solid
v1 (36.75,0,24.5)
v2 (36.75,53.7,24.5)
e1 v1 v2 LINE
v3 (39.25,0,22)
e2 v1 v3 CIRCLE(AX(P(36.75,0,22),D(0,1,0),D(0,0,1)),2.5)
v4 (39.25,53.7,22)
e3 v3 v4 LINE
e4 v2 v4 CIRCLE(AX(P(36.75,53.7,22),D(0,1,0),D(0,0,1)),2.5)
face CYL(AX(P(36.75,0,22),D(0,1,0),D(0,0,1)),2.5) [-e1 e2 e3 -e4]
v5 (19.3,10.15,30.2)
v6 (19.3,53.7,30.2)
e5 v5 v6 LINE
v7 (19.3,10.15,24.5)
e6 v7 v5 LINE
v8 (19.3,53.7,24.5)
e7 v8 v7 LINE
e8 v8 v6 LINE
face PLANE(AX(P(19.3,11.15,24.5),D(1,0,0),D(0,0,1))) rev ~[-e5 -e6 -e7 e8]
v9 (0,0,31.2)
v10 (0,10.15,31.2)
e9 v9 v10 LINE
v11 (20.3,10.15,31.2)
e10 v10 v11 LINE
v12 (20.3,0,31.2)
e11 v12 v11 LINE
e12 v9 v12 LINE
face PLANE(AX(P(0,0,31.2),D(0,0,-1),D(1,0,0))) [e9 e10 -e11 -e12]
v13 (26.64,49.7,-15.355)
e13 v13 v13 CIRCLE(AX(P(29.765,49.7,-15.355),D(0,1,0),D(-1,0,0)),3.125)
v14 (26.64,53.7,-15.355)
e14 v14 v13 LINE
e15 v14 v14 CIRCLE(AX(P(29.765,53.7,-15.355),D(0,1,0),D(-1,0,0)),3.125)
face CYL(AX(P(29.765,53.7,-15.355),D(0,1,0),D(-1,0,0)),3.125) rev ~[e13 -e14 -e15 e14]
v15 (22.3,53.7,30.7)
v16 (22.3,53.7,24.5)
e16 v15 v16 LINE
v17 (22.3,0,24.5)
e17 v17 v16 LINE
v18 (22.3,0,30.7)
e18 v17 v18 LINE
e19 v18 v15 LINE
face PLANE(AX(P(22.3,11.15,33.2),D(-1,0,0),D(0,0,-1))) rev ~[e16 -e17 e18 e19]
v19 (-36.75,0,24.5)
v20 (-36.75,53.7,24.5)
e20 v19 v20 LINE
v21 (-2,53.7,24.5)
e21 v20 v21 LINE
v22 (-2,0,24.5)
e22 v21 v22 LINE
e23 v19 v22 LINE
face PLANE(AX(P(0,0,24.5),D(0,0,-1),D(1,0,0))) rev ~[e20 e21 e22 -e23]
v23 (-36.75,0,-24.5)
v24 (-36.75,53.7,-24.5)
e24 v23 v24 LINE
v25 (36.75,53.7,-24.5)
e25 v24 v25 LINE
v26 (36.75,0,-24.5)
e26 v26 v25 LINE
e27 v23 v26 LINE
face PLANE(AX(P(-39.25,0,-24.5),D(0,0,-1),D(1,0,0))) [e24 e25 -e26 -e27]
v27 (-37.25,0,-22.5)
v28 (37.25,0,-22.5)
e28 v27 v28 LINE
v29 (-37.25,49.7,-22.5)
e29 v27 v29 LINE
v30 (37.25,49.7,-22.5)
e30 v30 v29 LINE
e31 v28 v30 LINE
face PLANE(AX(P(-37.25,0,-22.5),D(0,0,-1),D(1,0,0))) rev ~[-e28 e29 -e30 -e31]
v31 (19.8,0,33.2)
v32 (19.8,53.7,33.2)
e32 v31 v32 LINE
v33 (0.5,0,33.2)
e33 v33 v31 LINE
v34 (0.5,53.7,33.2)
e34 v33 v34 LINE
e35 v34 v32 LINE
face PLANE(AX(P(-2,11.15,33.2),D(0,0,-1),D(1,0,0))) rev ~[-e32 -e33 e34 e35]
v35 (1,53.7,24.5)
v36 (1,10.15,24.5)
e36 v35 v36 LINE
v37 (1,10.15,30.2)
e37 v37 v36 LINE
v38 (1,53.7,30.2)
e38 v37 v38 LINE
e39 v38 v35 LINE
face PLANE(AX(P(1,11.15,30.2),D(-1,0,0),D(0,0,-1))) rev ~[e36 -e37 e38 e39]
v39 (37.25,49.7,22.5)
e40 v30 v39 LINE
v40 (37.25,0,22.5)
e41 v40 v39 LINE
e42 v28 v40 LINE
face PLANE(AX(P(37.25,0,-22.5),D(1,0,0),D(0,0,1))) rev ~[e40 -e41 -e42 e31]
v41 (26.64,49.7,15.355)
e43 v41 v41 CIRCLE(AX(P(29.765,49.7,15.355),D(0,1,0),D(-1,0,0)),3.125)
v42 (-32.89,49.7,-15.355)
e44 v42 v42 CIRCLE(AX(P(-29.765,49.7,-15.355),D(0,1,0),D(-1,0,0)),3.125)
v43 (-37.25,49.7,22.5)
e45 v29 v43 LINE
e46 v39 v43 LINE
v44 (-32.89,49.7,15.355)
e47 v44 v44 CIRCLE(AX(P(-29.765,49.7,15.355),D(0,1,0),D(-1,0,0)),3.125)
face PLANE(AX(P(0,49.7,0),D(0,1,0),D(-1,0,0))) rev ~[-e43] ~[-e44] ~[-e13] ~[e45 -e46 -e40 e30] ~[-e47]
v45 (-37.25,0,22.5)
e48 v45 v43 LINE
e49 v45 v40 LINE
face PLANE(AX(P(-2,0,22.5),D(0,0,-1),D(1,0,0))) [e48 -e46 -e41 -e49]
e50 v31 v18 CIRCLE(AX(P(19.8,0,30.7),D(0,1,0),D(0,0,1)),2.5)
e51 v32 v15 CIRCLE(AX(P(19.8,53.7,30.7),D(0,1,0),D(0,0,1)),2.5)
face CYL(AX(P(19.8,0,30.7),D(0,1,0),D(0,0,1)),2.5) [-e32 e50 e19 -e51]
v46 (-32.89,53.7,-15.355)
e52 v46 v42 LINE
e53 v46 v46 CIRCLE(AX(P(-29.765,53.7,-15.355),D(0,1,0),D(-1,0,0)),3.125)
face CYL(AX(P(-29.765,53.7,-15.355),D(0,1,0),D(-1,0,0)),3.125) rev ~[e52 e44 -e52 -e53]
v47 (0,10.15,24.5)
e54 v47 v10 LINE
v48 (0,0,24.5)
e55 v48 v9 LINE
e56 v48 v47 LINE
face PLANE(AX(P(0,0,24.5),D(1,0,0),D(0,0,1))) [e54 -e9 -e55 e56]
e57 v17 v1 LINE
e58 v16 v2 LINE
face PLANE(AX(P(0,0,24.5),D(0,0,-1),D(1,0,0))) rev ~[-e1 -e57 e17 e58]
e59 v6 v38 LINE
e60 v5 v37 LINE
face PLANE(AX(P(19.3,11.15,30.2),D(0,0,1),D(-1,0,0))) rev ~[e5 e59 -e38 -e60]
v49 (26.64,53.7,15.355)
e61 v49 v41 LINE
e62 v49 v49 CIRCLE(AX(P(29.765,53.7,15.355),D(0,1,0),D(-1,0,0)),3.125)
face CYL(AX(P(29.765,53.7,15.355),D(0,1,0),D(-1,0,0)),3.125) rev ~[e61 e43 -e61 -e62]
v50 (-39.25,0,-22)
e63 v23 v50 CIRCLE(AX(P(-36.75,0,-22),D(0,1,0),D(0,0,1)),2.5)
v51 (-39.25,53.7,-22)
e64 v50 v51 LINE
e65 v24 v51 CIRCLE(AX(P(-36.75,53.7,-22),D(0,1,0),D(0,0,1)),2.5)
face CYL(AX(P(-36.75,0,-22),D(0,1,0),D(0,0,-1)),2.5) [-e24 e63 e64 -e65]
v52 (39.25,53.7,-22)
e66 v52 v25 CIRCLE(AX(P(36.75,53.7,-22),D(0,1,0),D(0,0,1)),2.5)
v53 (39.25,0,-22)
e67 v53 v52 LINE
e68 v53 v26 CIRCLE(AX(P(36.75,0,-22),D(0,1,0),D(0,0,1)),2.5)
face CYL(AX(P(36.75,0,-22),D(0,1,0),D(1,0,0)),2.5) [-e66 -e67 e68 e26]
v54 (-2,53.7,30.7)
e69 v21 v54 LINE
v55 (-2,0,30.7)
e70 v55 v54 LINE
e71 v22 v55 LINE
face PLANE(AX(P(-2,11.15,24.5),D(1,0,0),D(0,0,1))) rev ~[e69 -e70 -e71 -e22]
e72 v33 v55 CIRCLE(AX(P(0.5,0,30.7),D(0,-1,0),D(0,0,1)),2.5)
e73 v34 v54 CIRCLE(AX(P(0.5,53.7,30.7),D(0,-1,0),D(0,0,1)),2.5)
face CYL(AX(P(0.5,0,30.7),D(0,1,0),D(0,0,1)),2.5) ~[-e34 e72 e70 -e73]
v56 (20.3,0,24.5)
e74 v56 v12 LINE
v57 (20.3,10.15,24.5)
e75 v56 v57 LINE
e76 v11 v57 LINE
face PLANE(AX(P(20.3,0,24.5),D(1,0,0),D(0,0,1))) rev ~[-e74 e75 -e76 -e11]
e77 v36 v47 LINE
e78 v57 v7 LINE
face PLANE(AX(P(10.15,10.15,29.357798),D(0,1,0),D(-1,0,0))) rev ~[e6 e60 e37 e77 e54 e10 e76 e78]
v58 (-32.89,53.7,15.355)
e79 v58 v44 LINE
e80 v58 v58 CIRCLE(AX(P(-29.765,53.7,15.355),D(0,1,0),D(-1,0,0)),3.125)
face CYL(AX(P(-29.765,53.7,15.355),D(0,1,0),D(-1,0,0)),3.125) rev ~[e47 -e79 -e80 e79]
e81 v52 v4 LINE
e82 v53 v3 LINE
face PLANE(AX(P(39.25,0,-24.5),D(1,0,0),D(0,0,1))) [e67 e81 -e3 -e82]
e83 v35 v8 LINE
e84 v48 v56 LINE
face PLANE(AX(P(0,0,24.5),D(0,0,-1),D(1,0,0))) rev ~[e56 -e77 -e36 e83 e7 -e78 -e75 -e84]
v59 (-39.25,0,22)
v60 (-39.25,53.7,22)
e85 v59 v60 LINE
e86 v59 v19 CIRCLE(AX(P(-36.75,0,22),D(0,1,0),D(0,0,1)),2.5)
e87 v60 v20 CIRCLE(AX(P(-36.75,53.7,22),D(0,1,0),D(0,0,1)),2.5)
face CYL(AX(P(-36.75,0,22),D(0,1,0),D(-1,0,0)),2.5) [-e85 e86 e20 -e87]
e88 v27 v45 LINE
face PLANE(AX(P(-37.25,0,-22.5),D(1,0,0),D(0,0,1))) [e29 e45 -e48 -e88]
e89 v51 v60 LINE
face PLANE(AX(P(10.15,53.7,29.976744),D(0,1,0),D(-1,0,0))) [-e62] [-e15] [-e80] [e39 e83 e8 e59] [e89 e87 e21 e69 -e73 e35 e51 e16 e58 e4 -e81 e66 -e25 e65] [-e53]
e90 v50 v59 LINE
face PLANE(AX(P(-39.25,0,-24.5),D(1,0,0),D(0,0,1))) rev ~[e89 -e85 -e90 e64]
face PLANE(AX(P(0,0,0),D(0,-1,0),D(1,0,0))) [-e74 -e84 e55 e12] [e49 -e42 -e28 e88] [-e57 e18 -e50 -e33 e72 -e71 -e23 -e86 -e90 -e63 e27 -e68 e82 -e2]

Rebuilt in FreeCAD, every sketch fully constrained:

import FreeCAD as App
import Part
import Sketcher


def edges_at(feature, points):
    """Names of the edges that pass closest to the given points."""
    edges = feature.Shape.Edges
    near = lambda p: min(range(len(edges)), key=lambda i: edges[i].distToShape(Part.Vertex(*p))[0])
    return sorted({f"Edge{near(p) + 1}" for p in points})

doc = App.newDocument("Part")
body = doc.addObject("PartDesign::Body", "Body")

# Sketch on XZ plane
sketch1 = body.newObject("Sketcher::SketchObject", "Sketch")
sketch1.AttachmentSupport = (doc.getObject("XZ_Plane"), [""])
sketch1.MapMode = "FlatFace"
sketch1.addGeometry([
    Part.LineSegment(App.Vector(-39, 24, 0), App.Vector(-39, -24, 0)),  # 0
    Part.LineSegment(App.Vector(-39, -24, 0), App.Vector(39, -24, 0)),  # 1
    Part.LineSegment(App.Vector(39, -24, 0), App.Vector(39, 24, 0)),  # 2
    Part.LineSegment(App.Vector(39, 24, 0), App.Vector(-39, 24, 0)),  # 3
    Part.LineSegment(App.Vector(37, -22, 0), App.Vector(-37, -22, 0)),  # 4
    Part.LineSegment(App.Vector(-37, -22, 0), App.Vector(-37, 22, 0)),  # 5
    Part.LineSegment(App.Vector(-37, 22, 0), App.Vector(37, 22, 0)),  # 6
    Part.LineSegment(App.Vector(37, 22, 0), App.Vector(37, -22, 0)),  # 7
], False)
sketch1.addConstraint([
    Sketcher.Constraint("Coincident", 0, 2, 1, 1),
    Sketcher.Constraint("Coincident", 1, 2, 2, 1),
    Sketcher.Constraint("Coincident", 2, 2, 3, 1),
    Sketcher.Constraint("Coincident", 3, 2, 0, 1),
    Sketcher.Constraint("Coincident", 4, 2, 5, 1),
    Sketcher.Constraint("Coincident", 5, 2, 6, 1),
    Sketcher.Constraint("Coincident", 6, 2, 7, 1),
    Sketcher.Constraint("Coincident", 7, 2, 4, 1),
    Sketcher.Constraint("Vertical", 0),
    Sketcher.Constraint("Horizontal", 1),
    Sketcher.Constraint("Vertical", 2),
    Sketcher.Constraint("Horizontal", 3),
    Sketcher.Constraint("Horizontal", 4),
    Sketcher.Constraint("Vertical", 5),
    Sketcher.Constraint("Horizontal", 6),
    Sketcher.Constraint("Vertical", 7),
    Sketcher.Constraint("Symmetric", 0, 2, 2, 2, -1, 1),
    Sketcher.Constraint("Symmetric", 4, 2, 6, 2, -1, 1),
    Sketcher.Constraint("DistanceY", 0, 2, 0, 1, 49.0),
    Sketcher.Constraint("DistanceY", 5, 1, 5, 2, 45.0),
    Sketcher.Constraint("DistanceX", 1, 1, 1, 2, 78.5),
    Sketcher.Constraint("DistanceX", 4, 2, 4, 1, 74.5),
])
pad1 = body.newObject("PartDesign::Pad", "Pad")
pad1.Profile = sketch1
pad1.Length = 53.7
pad1.Reversed = True

# Sketch on XZ plane
sketch2 = body.newObject("Sketcher::SketchObject", "Sketch001")
sketch2.AttachmentSupport = (doc.getObject("XZ_Plane"), [""])
sketch2.MapMode = "FlatFace"
sketch2.addGeometry([
    Part.LineSegment(App.Vector(-2, 33, 0), App.Vector(-2, 22, 0)),  # 0
    Part.LineSegment(App.Vector(-2, 22, 0), App.Vector(22, 22, 0)),  # 1
    Part.LineSegment(App.Vector(22, 22, 0), App.Vector(22, 33, 0)),  # 2
    Part.LineSegment(App.Vector(22, 33, 0), App.Vector(-2, 33, 0)),  # 3
    Part.LineSegment(App.Vector(20, 24, 0), App.Vector(0, 24, 0)),  # 4
    Part.LineSegment(App.Vector(0, 24, 0), App.Vector(0, 31, 0)),  # 5
    Part.LineSegment(App.Vector(0, 31, 0), App.Vector(20, 31, 0)),  # 6
    Part.LineSegment(App.Vector(20, 31, 0), App.Vector(20, 24, 0)),  # 7
], False)
sketch2.addConstraint([
    Sketcher.Constraint("Coincident", 0, 2, 1, 1),
    Sketcher.Constraint("Coincident", 1, 2, 2, 1),
    Sketcher.Constraint("Coincident", 2, 2, 3, 1),
    Sketcher.Constraint("Coincident", 3, 2, 0, 1),
    Sketcher.Constraint("Coincident", 4, 2, 5, 1),
    Sketcher.Constraint("Coincident", 5, 2, 6, 1),
    Sketcher.Constraint("Coincident", 6, 2, 7, 1),
    Sketcher.Constraint("Coincident", 7, 2, 4, 1),
    Sketcher.Constraint("Vertical", 0),
    Sketcher.Constraint("Horizontal", 1),
    Sketcher.Constraint("Vertical", 2),
    Sketcher.Constraint("Horizontal", 3),
    Sketcher.Constraint("Horizontal", 4),
    Sketcher.Constraint("Vertical", 5),
    Sketcher.Constraint("Horizontal", 6),
    Sketcher.Constraint("Vertical", 7),
    Sketcher.Constraint("PointOnObject", 4, 2, -2),
    Sketcher.Constraint("DistanceX", 1, 1, 1, 2, 24.3),
    Sketcher.Constraint("DistanceX", 4, 2, 4, 1, 20.3),
    Sketcher.Constraint("DistanceY", 0, 2, 0, 1, 10.7),
    Sketcher.Constraint("DistanceY", 5, 1, 5, 2, 6.7),
    Sketcher.Constraint("DistanceX", 0, 2, -1, 1, 2.0),
    Sketcher.Constraint("DistanceY", 0, 2, 4, 2, 2.0),
    Sketcher.Constraint("DistanceY", -1, 1, 0, 2, 22.5),
])
pad2 = body.newObject("PartDesign::Pad", "Pad001")
pad2.Profile = sketch2
pad2.Length = 11.15
pad2.Reversed = True

# Sketch on XZ plane
sketch3 = body.newObject("Sketcher::SketchObject", "Sketch002")
sketch3.AttachmentSupport = (doc.getObject("XZ_Plane"), [""])
sketch3.MapMode = "FlatFace"
sketch3.AttachmentOffset = App.Placement(App.Vector(0, 0, -11.15), App.Rotation())
sketch3.addGeometry([
    Part.LineSegment(App.Vector(20.3, 24.5, 0), App.Vector(19.3, 24.5, 0)),  # 0
    Part.LineSegment(App.Vector(19.3, 24.5, 0), App.Vector(19.3, 30.2, 0)),  # 1
    Part.LineSegment(App.Vector(19.3, 30.2, 0), App.Vector(1, 30.2, 0)),  # 2
    Part.LineSegment(App.Vector(1, 30.2, 0), App.Vector(1, 24.5, 0)),  # 3
    Part.LineSegment(App.Vector(1, 24.5, 0), App.Vector(0, 24.5, 0)),  # 4
    Part.LineSegment(App.Vector(0, 24.5, 0), App.Vector(0, 31.2, 0)),  # 5
    Part.LineSegment(App.Vector(0, 31.2, 0), App.Vector(20.3, 31.2, 0)),  # 6
    Part.LineSegment(App.Vector(20.3, 31.2, 0), App.Vector(20.3, 24.5, 0)),  # 7
], False)
sketch3.addConstraint([
    Sketcher.Constraint("Coincident", 0, 2, 1, 1),
    Sketcher.Constraint("Coincident", 1, 2, 2, 1),
    Sketcher.Constraint("Coincident", 2, 2, 3, 1),
    Sketcher.Constraint("Coincident", 3, 2, 4, 1),
    Sketcher.Constraint("Coincident", 4, 2, 5, 1),
    Sketcher.Constraint("Coincident", 5, 2, 6, 1),
    Sketcher.Constraint("Coincident", 6, 2, 7, 1),
    Sketcher.Constraint("Coincident", 7, 2, 0, 1),
    Sketcher.Constraint("Horizontal", 0),
    Sketcher.Constraint("Vertical", 1),
    Sketcher.Constraint("Horizontal", 2),
    Sketcher.Constraint("Vertical", 3),
    Sketcher.Constraint("Horizontal", 4),
    Sketcher.Constraint("Vertical", 5),
    Sketcher.Constraint("Horizontal", 6),
    Sketcher.Constraint("Vertical", 7),
    Sketcher.Constraint("PointOnObject", 4, 2, -2),
    Sketcher.Constraint("Horizontal", 0, 2, 3, 2),
    Sketcher.Constraint("Equal", 0, 4),
    Sketcher.Constraint("DistanceX", 0, 2, 0, 1, 1.0),
    Sketcher.Constraint("DistanceX", 2, 2, 2, 1, 18.3),
    Sketcher.Constraint("DistanceY", 1, 1, 1, 2, 5.7),
    Sketcher.Constraint("DistanceY", 5, 1, 5, 2, 6.7),
    Sketcher.Constraint("DistanceY", -1, 1, 0, 2, 24.5),
])
pad3 = body.newObject("PartDesign::Pad", "Pad002")
pad3.Profile = sketch3
pad3.Length = 1
body2 = doc.addObject("PartDesign::Body", "Body001")

# Sketch on XZ plane
sketch4 = body2.newObject("Sketcher::SketchObject", "Sketch003")
sketch4.AttachmentSupport = (doc.getObject("XZ_Plane001"), [""])
sketch4.MapMode = "FlatFace"
sketch4.AttachmentOffset = App.Placement(App.Vector(0, 0, -53.7), App.Rotation())
sketch4.addGeometry([
    Part.LineSegment(App.Vector(37.2, 22.5, 0), App.Vector(37.2, -22.5, 0)),  # 0
    Part.LineSegment(App.Vector(37.2, -22.5, 0), App.Vector(-37.2, -22.5, 0)),  # 1
    Part.LineSegment(App.Vector(-37.2, -22.5, 0), App.Vector(-37.2, 22.5, 0)),  # 2
    Part.LineSegment(App.Vector(-37.2, 22.5, 0), App.Vector(37.2, 22.5, 0)),  # 3
    Part.Circle(App.Vector(29.8, -15.4, 0), App.Vector(0, 0, 1), 3.1),  # 4
    Part.Circle(App.Vector(-29.8, -15.4, 0), App.Vector(0, 0, 1), 3.1),  # 5
    Part.Circle(App.Vector(29.8, 15.4, 0), App.Vector(0, 0, 1), 3.1),  # 6
    Part.Circle(App.Vector(-29.8, 15.4, 0), App.Vector(0, 0, 1), 3.1),  # 7
], False)
sketch4.addConstraint([
    Sketcher.Constraint("Coincident", 0, 2, 1, 1),
    Sketcher.Constraint("Coincident", 1, 2, 2, 1),
    Sketcher.Constraint("Coincident", 2, 2, 3, 1),
    Sketcher.Constraint("Coincident", 3, 2, 0, 1),
    Sketcher.Constraint("Vertical", 0),
    Sketcher.Constraint("Horizontal", 1),
    Sketcher.Constraint("Vertical", 2),
    Sketcher.Constraint("Horizontal", 3),
    Sketcher.Constraint("Equal", 4, 5),
    Sketcher.Constraint("Equal", 5, 6),
    Sketcher.Constraint("Equal", 6, 7),
    Sketcher.Constraint("Symmetric", 5, 3, 6, 3, -1, 1),
    Sketcher.Constraint("Symmetric", 4, 3, 7, 3, -1, 1),
    Sketcher.Constraint("Symmetric", 0, 2, 2, 2, -1, 1),
    Sketcher.Constraint("Symmetric", 4, 3, 5, 3, -2),
    Sketcher.Constraint("Diameter", 4, 6.25),
    Sketcher.Constraint("DistanceY", 0, 2, 0, 1, 45.0),
    Sketcher.Constraint("DistanceX", 1, 2, 1, 1, 74.5),
    Sketcher.Constraint("DistanceX", 5, 3, 4, 3, 59.53),
    Sketcher.Constraint("DistanceY", 4, 3, 6, 3, 30.71),
])
pad4 = body2.newObject("PartDesign::Pad", "Pad003")
pad4.Profile = sketch4
pad4.Length = 4
doc.recompute()

boolean = body2.newObject("PartDesign::Boolean", "Boolean")
boolean.Type = "Fuse"
boolean.addObjects([body])

# Sketch on XZ plane
sketch5 = body2.newObject("Sketcher::SketchObject", "Sketch004")
sketch5.AttachmentSupport = (doc.getObject("XZ_Plane001"), [""])
sketch5.MapMode = "FlatFace"
sketch5.AttachmentOffset = App.Placement(App.Vector(0, 0, -11.15), App.Rotation())
sketch5.addGeometry([
    Part.LineSegment(App.Vector(22.3, 24.5, 0), App.Vector(19.3, 24.5, 0)),  # 0
    Part.LineSegment(App.Vector(19.3, 24.5, 0), App.Vector(19.3, 30.2, 0)),  # 1
    Part.LineSegment(App.Vector(19.3, 30.2, 0), App.Vector(1, 30.2, 0)),  # 2
    Part.LineSegment(App.Vector(1, 30.2, 0), App.Vector(1, 24.5, 0)),  # 3
    Part.LineSegment(App.Vector(1, 24.5, 0), App.Vector(-2, 24.5, 0)),  # 4
    Part.LineSegment(App.Vector(-2, 24.5, 0), App.Vector(-2, 33.2, 0)),  # 5
    Part.LineSegment(App.Vector(-2, 33.2, 0), App.Vector(22.3, 33.2, 0)),  # 6
    Part.LineSegment(App.Vector(22.3, 33.2, 0), App.Vector(22.3, 24.5, 0)),  # 7
], False)
sketch5.addConstraint([
    Sketcher.Constraint("Coincident", 0, 2, 1, 1),
    Sketcher.Constraint("Coincident", 1, 2, 2, 1),
    Sketcher.Constraint("Coincident", 2, 2, 3, 1),
    Sketcher.Constraint("Coincident", 3, 2, 4, 1),
    Sketcher.Constraint("Coincident", 4, 2, 5, 1),
    Sketcher.Constraint("Coincident", 5, 2, 6, 1),
    Sketcher.Constraint("Coincident", 6, 2, 7, 1),
    Sketcher.Constraint("Coincident", 7, 2, 0, 1),
    Sketcher.Constraint("Horizontal", 0),
    Sketcher.Constraint("Vertical", 1),
    Sketcher.Constraint("Horizontal", 2),
    Sketcher.Constraint("Vertical", 3),
    Sketcher.Constraint("Horizontal", 4),
    Sketcher.Constraint("Vertical", 5),
    Sketcher.Constraint("Horizontal", 6),
    Sketcher.Constraint("Vertical", 7),
    Sketcher.Constraint("Horizontal", 0, 2, 3, 2),
    Sketcher.Constraint("Equal", 0, 4),
    Sketcher.Constraint("DistanceX", 0, 2, 0, 1, 3.0),
    Sketcher.Constraint("DistanceX", 2, 2, 2, 1, 18.3),
    Sketcher.Constraint("DistanceY", 1, 1, 1, 2, 5.7),
    Sketcher.Constraint("DistanceY", 5, 1, 5, 2, 8.7),
    Sketcher.Constraint("DistanceX", -1, 1, 2, 2, 1.0),
    Sketcher.Constraint("DistanceY", -1, 1, 0, 2, 24.5),
])
pad5 = body2.newObject("PartDesign::Pad", "Pad004")
pad5.Profile = sketch5
pad5.Length = 42.55
pad5.Reversed = True
doc.recompute()

fillet = body2.newObject("PartDesign::Fillet", "Fillet")
fillet.Base = (pad5, edges_at(pad5, [
    (22.3, 26.85, 33.2),
    (-2, 26.85, 33.2),
    (39.25, 26.85, 24.5),
    (39.25, 26.85, -24.5),
    (-39.25, 26.85, 24.5),
    (-39.25, 26.85, -24.5),
]))
fillet.Radius = 2.5

doc.recompute()
